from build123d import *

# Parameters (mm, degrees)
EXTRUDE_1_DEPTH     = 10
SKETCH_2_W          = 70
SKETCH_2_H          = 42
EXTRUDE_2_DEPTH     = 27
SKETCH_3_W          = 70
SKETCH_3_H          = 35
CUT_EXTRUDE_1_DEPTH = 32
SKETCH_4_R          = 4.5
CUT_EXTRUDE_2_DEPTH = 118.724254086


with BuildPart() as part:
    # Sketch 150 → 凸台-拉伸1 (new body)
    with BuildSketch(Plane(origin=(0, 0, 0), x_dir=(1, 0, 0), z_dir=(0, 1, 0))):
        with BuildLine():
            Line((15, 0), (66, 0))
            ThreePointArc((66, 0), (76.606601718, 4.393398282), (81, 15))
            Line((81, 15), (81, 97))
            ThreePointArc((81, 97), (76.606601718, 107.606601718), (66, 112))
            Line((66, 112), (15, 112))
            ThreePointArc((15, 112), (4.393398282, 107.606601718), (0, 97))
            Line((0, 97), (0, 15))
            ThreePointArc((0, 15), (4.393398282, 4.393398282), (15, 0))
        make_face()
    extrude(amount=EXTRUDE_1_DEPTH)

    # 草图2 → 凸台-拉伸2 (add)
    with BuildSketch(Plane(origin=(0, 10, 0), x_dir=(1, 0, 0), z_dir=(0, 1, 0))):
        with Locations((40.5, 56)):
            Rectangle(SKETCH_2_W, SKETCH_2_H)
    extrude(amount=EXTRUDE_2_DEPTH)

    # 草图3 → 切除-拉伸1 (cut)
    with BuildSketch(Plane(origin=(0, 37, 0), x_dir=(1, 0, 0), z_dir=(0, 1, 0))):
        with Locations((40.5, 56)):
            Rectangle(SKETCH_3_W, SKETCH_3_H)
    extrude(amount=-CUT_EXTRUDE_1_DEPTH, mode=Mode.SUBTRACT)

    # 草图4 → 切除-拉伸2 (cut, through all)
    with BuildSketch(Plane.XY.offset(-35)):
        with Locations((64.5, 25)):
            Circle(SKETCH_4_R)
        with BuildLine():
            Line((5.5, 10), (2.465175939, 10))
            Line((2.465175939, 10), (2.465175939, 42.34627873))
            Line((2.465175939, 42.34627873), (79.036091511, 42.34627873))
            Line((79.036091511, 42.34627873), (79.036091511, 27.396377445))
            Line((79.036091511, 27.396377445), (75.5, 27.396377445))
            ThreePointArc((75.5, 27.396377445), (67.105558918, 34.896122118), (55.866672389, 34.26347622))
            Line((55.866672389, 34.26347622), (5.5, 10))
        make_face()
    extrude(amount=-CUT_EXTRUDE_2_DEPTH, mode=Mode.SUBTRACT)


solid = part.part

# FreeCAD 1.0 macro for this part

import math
import FreeCAD as App
import Part
import Sketcher
Q = App.Units.Quantity

doc = App.newDocument("Part")
params = doc.addObject("Spreadsheet::Sheet", "Params")
for row, (alias, value) in enumerate([
    ("sketch1_radius", "15 mm"),
    ("sketch1_width", "51 mm"),
    ("sketch1_height", "82 mm"),
    ("pad1_length", "10 mm"),
    ("sketch2_width", "70 mm"),
    ("sketch2_height", "42 mm"),
    ("pad2_length", "27 mm"),
    ("sketch3_width", "70 mm"),
    ("sketch3_height", "35 mm"),
    ("pocket1_length", "32 mm"),
    ("sketch4_diameter", "9 mm"),
], start=1):
    params.set(f"A{row}", alias)
    params.set(f"B{row}", "=" + value)
    params.setAlias(f"B{row}", alias)

body = doc.addObject("PartDesign::Body", "Body")

sketch1 = body.newObject("Sketcher::SketchObject", "Sketch")
sketch1.AttachmentSupport = (doc.getObject("XZ_Plane"), [""])
sketch1.MapMode = "FlatFace"
sketch1.addGeometry([
    Part.LineSegment(App.Vector(15, 0, 0), App.Vector(66, 0, 0)),
    Part.ArcOfCircle(Part.Circle(App.Vector(66, -15, 0), App.Vector(0, 0, 1), 15), math.radians(0), math.radians(90)),
    Part.LineSegment(App.Vector(81, -15, 0), App.Vector(81, -97, 0)),
    Part.ArcOfCircle(Part.Circle(App.Vector(66, -97, 0), App.Vector(0, 0, 1), 15), math.radians(-90), math.radians(0)),
    Part.LineSegment(App.Vector(66, -112, 0), App.Vector(15, -112, 0)),
    Part.ArcOfCircle(Part.Circle(App.Vector(15, -97, 0), App.Vector(0, 0, 1), 15), math.radians(180), math.radians(270)),
    Part.LineSegment(App.Vector(0, -97, 0), App.Vector(0, -15, 0)),
    Part.ArcOfCircle(Part.Circle(App.Vector(15, -15, 0), App.Vector(0, 0, 1), 15), math.radians(90), math.radians(180)),
], False)
sketch1.addConstraint([
    Sketcher.Constraint("Tangent", 0, 2, 1, 2),
    Sketcher.Constraint("Tangent", 1, 1, 2, 1),
    Sketcher.Constraint("Tangent", 2, 2, 3, 2),
    Sketcher.Constraint("Tangent", 3, 1, 4, 1),
    Sketcher.Constraint("Tangent", 4, 2, 5, 2),
    Sketcher.Constraint("Tangent", 5, 1, 6, 1),
    Sketcher.Constraint("Tangent", 6, 2, 7, 2),
    Sketcher.Constraint("Tangent", 7, 1, 0, 1),
    Sketcher.Constraint("Horizontal", 0),
    Sketcher.Constraint("Vertical", 2),
    Sketcher.Constraint("Horizontal", 4),
    Sketcher.Constraint("Vertical", 6),
    Sketcher.Constraint("Equal", 1, 3),
    Sketcher.Constraint("Equal", 3, 5),
    Sketcher.Constraint("Equal", 5, 7),
    Sketcher.Constraint("PointOnObject", 0, 2, -1),
    Sketcher.Constraint("PointOnObject", 5, 1, -2),
    Sketcher.Constraint("Radius", 1, Q("15 mm")),
    Sketcher.Constraint("DistanceX", 0, 1, 0, 2, Q("51 mm")),
    Sketcher.Constraint("DistanceY", 2, 2, 2, 1, Q("82 mm")),
])
sketch1.setExpression("Constraints[17]", "Params.sketch1_radius")
sketch1.setExpression("Constraints[18]", "Params.sketch1_width")
sketch1.setExpression("Constraints[19]", "Params.sketch1_height")
pad1 = body.newObject("PartDesign::Pad", "Pad")
pad1.Profile = sketch1
pad1.setExpression("Length", "Params.pad1_length")
pad1.Reversed = True

sketch2 = body.newObject("Sketcher::SketchObject", "Sketch001")
sketch2.AttachmentSupport = (doc.getObject("XZ_Plane"), [""])
sketch2.MapMode = "FlatFace"
sketch2.AttachmentOffset = App.Placement(App.Vector(0, 0, -10), App.Rotation())
sketch2.addGeometry([
    Part.LineSegment(App.Vector(5.5, -77, 0), App.Vector(5.5, -35, 0)),
    Part.LineSegment(App.Vector(5.5, -35, 0), App.Vector(75.5, -35, 0)),
    Part.LineSegment(App.Vector(75.5, -35, 0), App.Vector(75.5, -77, 0)),
    Part.LineSegment(App.Vector(75.5, -77, 0), App.Vector(5.5, -77, 0)),
], False)
sketch2.addConstraint([
    Sketcher.Constraint("Coincident", 0, 2, 1, 1),
    Sketcher.Constraint("Coincident", 1, 2, 2, 1),
    Sketcher.Constraint("Coincident", 2, 2, 3, 1),
    Sketcher.Constraint("Coincident", 3, 2, 0, 1),
    Sketcher.Constraint("Vertical", 0),
    Sketcher.Constraint("Horizontal", 1),
    Sketcher.Constraint("Vertical", 2),
    Sketcher.Constraint("Horizontal", 3),
    Sketcher.Constraint("DistanceX", 1, 1, 1, 2, Q("70 mm")),
    Sketcher.Constraint("DistanceY", 0, 1, 0, 2, Q("42 mm")),
    Sketcher.Constraint("DistanceY", 0, 2, -1, 1, Q("35 mm")),
    Sketcher.Constraint("DistanceX", -1, 1, 0, 2, Q("5.5 mm")),
])
sketch2.setExpression("Constraints[8]", "Params.sketch2_width")
sketch2.setExpression("Constraints[9]", "Params.sketch2_height")
pad2 = body.newObject("PartDesign::Pad", "Pad001")
pad2.Profile = sketch2
pad2.setExpression("Length", "Params.pad2_length")
pad2.Reversed = True

sketch3 = body.newObject("Sketcher::SketchObject", "Sketch002")
sketch3.AttachmentSupport = (doc.getObject("XZ_Plane"), [""])
sketch3.MapMode = "FlatFace"
sketch3.AttachmentOffset = App.Placement(App.Vector(0, 0, -37), App.Rotation())
sketch3.addGeometry([
    Part.LineSegment(App.Vector(5.5, -73.5, 0), App.Vector(5.5, -38.5, 0)),
    Part.LineSegment(App.Vector(5.5, -38.5, 0), App.Vector(75.5, -38.5, 0)),
    Part.LineSegment(App.Vector(75.5, -38.5, 0), App.Vector(75.5, -73.5, 0)),
    Part.LineSegment(App.Vector(75.5, -73.5, 0), App.Vector(5.5, -73.5, 0)),
], False)
sketch3.addConstraint([
    Sketcher.Constraint("Coincident", 0, 2, 1, 1),
    Sketcher.Constraint("Coincident", 1, 2, 2, 1),
    Sketcher.Constraint("Coincident", 2, 2, 3, 1),
    Sketcher.Constraint("Coincident", 3, 2, 0, 1),
    Sketcher.Constraint("Vertical", 0),
    Sketcher.Constraint("Horizontal", 1),
    Sketcher.Constraint("Vertical", 2),
    Sketcher.Constraint("Horizontal", 3),
    Sketcher.Constraint("DistanceX", 1, 1, 1, 2, Q("70 mm")),
    Sketcher.Constraint("DistanceY", 0, 1, 0, 2, Q("35 mm")),
    Sketcher.Constraint("DistanceX", -1, 1, 0, 2, Q("5.5 mm")),
    Sketcher.Constraint("DistanceY", 0, 2, -1, 1, Q("38.5 mm")),
])
sketch3.setExpression("Constraints[8]", "Params.sketch3_width")
sketch3.setExpression("Constraints[9]", "Params.sketch3_height")
pocket1 = body.newObject("PartDesign::Pocket", "Pocket")
pocket1.Profile = sketch3
pocket1.setExpression("Length", "Params.pocket1_length")
pocket1.Reversed = True

sketch4 = body.newObject("Sketcher::SketchObject", "Sketch003")
sketch4.AttachmentSupport = (doc.getObject("XY_Plane"), [""])
sketch4.MapMode = "FlatFace"
sketch4.AttachmentOffset = App.Placement(App.Vector(0, 0, -35), App.Rotation())
sketch4.addGeometry([
    Part.Circle(App.Vector(64.5, 25, 0), App.Vector(0, 0, 1), 4.5),
    Part.LineSegment(App.Vector(2.465176, 10, 0), App.Vector(5.5, 10, 0)),
    Part.LineSegment(App.Vector(5.5, 10, 0), App.Vector(55.866672, 34.263476, 0)),
    Part.ArcOfCircle(Part.Circle(App.Vector(62.249787, 21.013263, 0), App.Vector(0, 0, 1), 14.707559), math.radians(25.721825), math.radians(115.721825)),
    Part.LineSegment(App.Vector(75.5, 27.396377, 0), App.Vector(79.036092, 27.396377, 0)),
    Part.LineSegment(App.Vector(79.036092, 27.396377, 0), App.Vector(79.036092, 42.346279, 0)),
    Part.LineSegment(App.Vector(79.036092, 42.346279, 0), App.Vector(2.465176, 42.346279, 0)),
    Part.LineSegment(App.Vector(2.465176, 42.346279, 0), App.Vector(2.465176, 10, 0)),
], False)
sketch4.addConstraint([
    Sketcher.Constraint("Coincident", 1, 2, 2, 1),
    Sketcher.Constraint("Tangent", 2, 2, 3, 2),
    Sketcher.Constraint("Coincident", 3, 1, 4, 1),
    Sketcher.Constraint("Coincident", 4, 2, 5, 1),
    Sketcher.Constraint("Coincident", 5, 2, 6, 1),
    Sketcher.Constraint("Coincident", 6, 2, 7, 1),
    Sketcher.Constraint("Coincident", 7, 2, 1, 1),
    Sketcher.Constraint("Horizontal", 1),
    Sketcher.Constraint("Horizontal", 4),
    Sketcher.Constraint("Vertical", 5),
    Sketcher.Constraint("Horizontal", 6),
    Sketcher.Constraint("Vertical", 7),
    Sketcher.Constraint("Diameter", 0, Q("9 mm")),
    Sketcher.Constraint("DistanceY", -1, 1, 0, 3, Q("25 mm")),
    Sketcher.Constraint("DistanceY", -1, 1, 1, 2, Q("10 mm")),
    Sketcher.Constraint("DistanceX", 1, 2, 0, 3, Q("59 mm")),
    Sketcher.Constraint("DistanceX", 0, 3, 3, 1, Q("11 mm")),
    Sketcher.Constraint("DistanceX", -1, 1, 0, 3, Q("64.5 mm")),
    Sketcher.Constraint("Radius", 3, Q("14.707559 mm")),
    Sketcher.Constraint("DistanceY", 5, 1, 5, 2, Q("14.949901 mm")),
    Sketcher.Constraint("DistanceX", 4, 1, 4, 2, Q("3.536092 mm")),
    Sketcher.Constraint("DistanceY", 7, 2, 7, 1, Q("32.346279 mm")),
    Sketcher.Constraint("DistanceY", 3, 1, 2, 2, Q("6.867099 mm")),
    Sketcher.Constraint("DistanceX", 1, 1, 1, 2, Q("3.034824 mm")),
])
sketch4.setExpression("Constraints[12]", "Params.sketch4_diameter")
pocket2 = body.newObject("PartDesign::Pocket", "Pocket001")
pocket2.Profile = sketch4
pocket2.Type = "ThroughAll"

doc.recompute()
